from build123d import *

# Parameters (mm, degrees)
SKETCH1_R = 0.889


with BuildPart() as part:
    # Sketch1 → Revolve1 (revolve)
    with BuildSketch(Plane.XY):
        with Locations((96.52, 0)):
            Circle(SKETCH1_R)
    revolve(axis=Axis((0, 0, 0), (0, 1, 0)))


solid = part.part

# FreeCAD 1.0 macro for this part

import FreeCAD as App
import Part
import Sketcher
Q = App.Units.Quantity

doc = App.newDocument("Part")
body = doc.addObject("PartDesign::Body", "Body")

sketch1 = body.newObject("Sketcher::SketchObject", "Sketch")
sketch1.AttachmentSupport = (doc.getObject("XY_Plane"), [""])
sketch1.MapMode = "FlatFace"
sketch1.addGeometry(Part.Circle(App.Vector(96.5, 0, 0), App.Vector(0, 0, 1), 0.9), False)
sketch1.addConstraint([
    Sketcher.Constraint("PointOnObject", 0, 3, -1),
    Sketcher.Constraint("Diameter", 0, Q("0.07 in")),
    Sketcher.Constraint("DistanceX", -1, 1, 0, 3, Q("3.8 in")),
])
revolution = body.newObject("PartDesign::Revolution", "Revolution")
revolution.Profile = sketch1
revolution.ReferenceAxis = (sketch1, ["V_Axis"])
revolution.Angle = 360

doc.recompute()
